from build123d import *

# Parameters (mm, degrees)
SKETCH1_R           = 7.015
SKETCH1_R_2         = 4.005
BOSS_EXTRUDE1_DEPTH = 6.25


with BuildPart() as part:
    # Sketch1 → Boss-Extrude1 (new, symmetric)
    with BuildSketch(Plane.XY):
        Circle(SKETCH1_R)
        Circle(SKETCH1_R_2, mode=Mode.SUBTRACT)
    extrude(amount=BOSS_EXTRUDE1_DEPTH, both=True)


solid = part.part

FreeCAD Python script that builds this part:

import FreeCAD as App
import Part
import Sketcher
from FreeCAD import Vector
Q = App.Units.Quantity

doc = App.newDocument("Part")
body = doc.addObject("PartDesign::Body", "Body")

sketch1 = body.newObject("Sketcher::SketchObject", "Sketch")
sketch1.AttachmentSupport = (doc.getObject("XY_Plane"), [""])
sketch1.MapMode = "FlatFace"
sketch1.addGeometry(Part.Circle(Vector(0, 0, 0), Vector(0, 0, 1), 7), False)
sketch1.addGeometry(Part.Circle(Vector(0, 0, 0), Vector(0, 0, 1), 4), False)
sketch1.addConstraint(Sketcher.Constraint("Coincident", 0, 3, -1, 1))
sketch1.addConstraint(Sketcher.Constraint("Coincident", 1, 3, -1, 1))
sketch1.addConstraint(Sketcher.Constraint("Diameter", 0, Q("14.03 mm")))
sketch1.addConstraint(Sketcher.Constraint("Diameter", 1, Q("8.01 mm")))
pad1 = body.newObject("PartDesign::Pad", "Pad")
pad1.Profile = sketch1
pad1.Length = 12.5
pad1.Midplane = True

doc.recompute()
